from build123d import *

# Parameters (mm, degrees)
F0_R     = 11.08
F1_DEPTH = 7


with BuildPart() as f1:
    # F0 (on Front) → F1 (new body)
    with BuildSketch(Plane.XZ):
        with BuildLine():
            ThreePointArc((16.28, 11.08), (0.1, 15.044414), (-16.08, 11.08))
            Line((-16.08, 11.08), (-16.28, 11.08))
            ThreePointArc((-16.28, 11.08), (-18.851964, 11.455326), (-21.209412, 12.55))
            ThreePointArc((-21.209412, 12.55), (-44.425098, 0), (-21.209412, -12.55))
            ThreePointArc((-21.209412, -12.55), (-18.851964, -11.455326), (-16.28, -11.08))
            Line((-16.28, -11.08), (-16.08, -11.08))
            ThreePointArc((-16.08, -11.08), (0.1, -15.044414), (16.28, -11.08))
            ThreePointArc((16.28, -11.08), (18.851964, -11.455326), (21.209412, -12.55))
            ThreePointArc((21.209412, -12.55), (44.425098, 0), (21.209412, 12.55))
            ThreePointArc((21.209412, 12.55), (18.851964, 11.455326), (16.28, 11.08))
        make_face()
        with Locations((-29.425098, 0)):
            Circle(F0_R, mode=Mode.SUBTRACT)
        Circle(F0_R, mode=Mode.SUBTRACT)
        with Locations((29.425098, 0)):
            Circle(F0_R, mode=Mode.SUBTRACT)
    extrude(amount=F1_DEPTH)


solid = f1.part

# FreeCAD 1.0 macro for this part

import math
import FreeCAD as App
import Part
import Sketcher

V = App.Vector

doc = App.newDocument("Part")
body = doc.addObject("PartDesign::Body", "Body")

# Sketch on XZ plane
sketch1 = body.newObject("Sketcher::SketchObject", "Sketch")
sketch1.AttachmentSupport = (doc.getObject("XZ_Plane"), [""])
sketch1.MapMode = "FlatFace"
sketch1.addGeometry([
    Part.ArcOfCircle(Part.Circle(V(0.1, -19.955586, 0), V(0, 0, 1), 35), math.radians(62.465301), math.radians(117.534699)),  # 0
    Part.LineSegment(V(-16.08, 11.08, 0), V(-16.28, 11.08, 0)),  # 1
    Part.ArcOfCircle(Part.Circle(V(-16.28, 20.080001, 0), V(0, 0, 1), 9.000001), math.radians(-123.210214), math.radians(-90.000001)),  # 2
    Part.ArcOfCircle(Part.Circle(V(-29.425098, 0, 0), V(0, 0, 1), 15), math.radians(56.789784), math.radians(303.210216)),  # 3
    Part.ArcOfCircle(Part.Circle(V(-16.28, -20.080001, 0), V(0, 0, 1), 9.000001), math.radians(90.000001), math.radians(123.210214)),  # 4
    Part.LineSegment(V(-16.28, -11.08, 0), V(-16.08, -11.08, 0)),  # 5
    Part.ArcOfCircle(Part.Circle(V(0.1, 19.955586, 0), V(0, 0, 1), 35), math.radians(-117.534699), math.radians(-62.465301)),  # 6
    Part.ArcOfCircle(Part.Circle(V(16.28, -20.080001, 0), V(0, 0, 1), 9.000001), math.radians(56.789786), math.radians(89.999999)),  # 7
    Part.ArcOfCircle(Part.Circle(V(29.425098, 0, 0), V(0, 0, 1), 15), math.radians(-123.210216), math.radians(123.210216)),  # 8
    Part.ArcOfCircle(Part.Circle(V(16.28, 20.080001, 0), V(0, 0, 1), 9.000001), math.radians(-89.999999), math.radians(-56.789786)),  # 9
    Part.Circle(V(-29.425098, 0, 0), V(0, 0, 1), 11.08),  # 10
    Part.Circle(V(0, 0, 0), V(0, 0, 1), 11.08),  # 11
    Part.Circle(V(29.425098, 0, 0), V(0, 0, 1), 11.08),  # 12
], False)
sketch1.addConstraint([
    Sketcher.Constraint("Coincident", 0, 2, 1, 1),
    Sketcher.Constraint("Tangent", 1, 2, 2, 2),
    Sketcher.Constraint("Tangent", 2, 1, 3, 1),
    Sketcher.Constraint("Tangent", 3, 2, 4, 2),
    Sketcher.Constraint("Tangent", 4, 1, 5, 1),
    Sketcher.Constraint("Coincident", 5, 2, 6, 1),
    Sketcher.Constraint("Coincident", 6, 2, 7, 2),
    Sketcher.Constraint("Tangent", 7, 1, 8, 1),
    Sketcher.Constraint("Tangent", 8, 2, 9, 2),
    Sketcher.Constraint("Coincident", 9, 1, 0, 1),
    Sketcher.Constraint("Horizontal", 1),
    Sketcher.Constraint("Horizontal", 5),
    Sketcher.Constraint("Coincident", 11, 3, -1, 1),
    Sketcher.Constraint("Coincident", 10, 3, 3, 3),
    Sketcher.Constraint("Coincident", 12, 3, 8, 3),
    Sketcher.Constraint("Equal", 2, 4),
    Sketcher.Constraint("Equal", 0, 6),
    Sketcher.Constraint("Equal", 4, 7),
    Sketcher.Constraint("Equal", 3, 8),
    Sketcher.Constraint("Equal", 7, 9),
    Sketcher.Constraint("Equal", 10, 11),
    Sketcher.Constraint("Equal", 11, 12),
    Sketcher.Constraint("Symmetric", 2, 3, 7, 3, -1, 1),
    Sketcher.Constraint("Symmetric", 4, 3, 9, 3, -1, 1),
    Sketcher.Constraint("Symmetric", 4, 3, 7, 3, -2),
    Sketcher.Constraint("Symmetric", 0, 3, 6, 3, -1),
    Sketcher.Constraint("Vertical", 9, 3, 6, 2),
    Sketcher.Constraint("Radius", 0, 35.0),
    Sketcher.Constraint("Radius", 2, 9.000001),
    Sketcher.Constraint("Radius", 3, 15.0),
    Sketcher.Constraint("Diameter", 10, 22.16),
    Sketcher.Constraint("DistanceX", 1, 2, 1, 1, 0.2),
    Sketcher.Constraint("DistanceX", 2, 3, -1, 1, 16.28),
    Sketcher.Constraint("DistanceY", -1, 1, 2, 3, 20.080001),
])
pad1 = body.newObject("PartDesign::Pad", "Pad")
pad1.Profile = sketch1
pad1.Length = 7

doc.recompute()
